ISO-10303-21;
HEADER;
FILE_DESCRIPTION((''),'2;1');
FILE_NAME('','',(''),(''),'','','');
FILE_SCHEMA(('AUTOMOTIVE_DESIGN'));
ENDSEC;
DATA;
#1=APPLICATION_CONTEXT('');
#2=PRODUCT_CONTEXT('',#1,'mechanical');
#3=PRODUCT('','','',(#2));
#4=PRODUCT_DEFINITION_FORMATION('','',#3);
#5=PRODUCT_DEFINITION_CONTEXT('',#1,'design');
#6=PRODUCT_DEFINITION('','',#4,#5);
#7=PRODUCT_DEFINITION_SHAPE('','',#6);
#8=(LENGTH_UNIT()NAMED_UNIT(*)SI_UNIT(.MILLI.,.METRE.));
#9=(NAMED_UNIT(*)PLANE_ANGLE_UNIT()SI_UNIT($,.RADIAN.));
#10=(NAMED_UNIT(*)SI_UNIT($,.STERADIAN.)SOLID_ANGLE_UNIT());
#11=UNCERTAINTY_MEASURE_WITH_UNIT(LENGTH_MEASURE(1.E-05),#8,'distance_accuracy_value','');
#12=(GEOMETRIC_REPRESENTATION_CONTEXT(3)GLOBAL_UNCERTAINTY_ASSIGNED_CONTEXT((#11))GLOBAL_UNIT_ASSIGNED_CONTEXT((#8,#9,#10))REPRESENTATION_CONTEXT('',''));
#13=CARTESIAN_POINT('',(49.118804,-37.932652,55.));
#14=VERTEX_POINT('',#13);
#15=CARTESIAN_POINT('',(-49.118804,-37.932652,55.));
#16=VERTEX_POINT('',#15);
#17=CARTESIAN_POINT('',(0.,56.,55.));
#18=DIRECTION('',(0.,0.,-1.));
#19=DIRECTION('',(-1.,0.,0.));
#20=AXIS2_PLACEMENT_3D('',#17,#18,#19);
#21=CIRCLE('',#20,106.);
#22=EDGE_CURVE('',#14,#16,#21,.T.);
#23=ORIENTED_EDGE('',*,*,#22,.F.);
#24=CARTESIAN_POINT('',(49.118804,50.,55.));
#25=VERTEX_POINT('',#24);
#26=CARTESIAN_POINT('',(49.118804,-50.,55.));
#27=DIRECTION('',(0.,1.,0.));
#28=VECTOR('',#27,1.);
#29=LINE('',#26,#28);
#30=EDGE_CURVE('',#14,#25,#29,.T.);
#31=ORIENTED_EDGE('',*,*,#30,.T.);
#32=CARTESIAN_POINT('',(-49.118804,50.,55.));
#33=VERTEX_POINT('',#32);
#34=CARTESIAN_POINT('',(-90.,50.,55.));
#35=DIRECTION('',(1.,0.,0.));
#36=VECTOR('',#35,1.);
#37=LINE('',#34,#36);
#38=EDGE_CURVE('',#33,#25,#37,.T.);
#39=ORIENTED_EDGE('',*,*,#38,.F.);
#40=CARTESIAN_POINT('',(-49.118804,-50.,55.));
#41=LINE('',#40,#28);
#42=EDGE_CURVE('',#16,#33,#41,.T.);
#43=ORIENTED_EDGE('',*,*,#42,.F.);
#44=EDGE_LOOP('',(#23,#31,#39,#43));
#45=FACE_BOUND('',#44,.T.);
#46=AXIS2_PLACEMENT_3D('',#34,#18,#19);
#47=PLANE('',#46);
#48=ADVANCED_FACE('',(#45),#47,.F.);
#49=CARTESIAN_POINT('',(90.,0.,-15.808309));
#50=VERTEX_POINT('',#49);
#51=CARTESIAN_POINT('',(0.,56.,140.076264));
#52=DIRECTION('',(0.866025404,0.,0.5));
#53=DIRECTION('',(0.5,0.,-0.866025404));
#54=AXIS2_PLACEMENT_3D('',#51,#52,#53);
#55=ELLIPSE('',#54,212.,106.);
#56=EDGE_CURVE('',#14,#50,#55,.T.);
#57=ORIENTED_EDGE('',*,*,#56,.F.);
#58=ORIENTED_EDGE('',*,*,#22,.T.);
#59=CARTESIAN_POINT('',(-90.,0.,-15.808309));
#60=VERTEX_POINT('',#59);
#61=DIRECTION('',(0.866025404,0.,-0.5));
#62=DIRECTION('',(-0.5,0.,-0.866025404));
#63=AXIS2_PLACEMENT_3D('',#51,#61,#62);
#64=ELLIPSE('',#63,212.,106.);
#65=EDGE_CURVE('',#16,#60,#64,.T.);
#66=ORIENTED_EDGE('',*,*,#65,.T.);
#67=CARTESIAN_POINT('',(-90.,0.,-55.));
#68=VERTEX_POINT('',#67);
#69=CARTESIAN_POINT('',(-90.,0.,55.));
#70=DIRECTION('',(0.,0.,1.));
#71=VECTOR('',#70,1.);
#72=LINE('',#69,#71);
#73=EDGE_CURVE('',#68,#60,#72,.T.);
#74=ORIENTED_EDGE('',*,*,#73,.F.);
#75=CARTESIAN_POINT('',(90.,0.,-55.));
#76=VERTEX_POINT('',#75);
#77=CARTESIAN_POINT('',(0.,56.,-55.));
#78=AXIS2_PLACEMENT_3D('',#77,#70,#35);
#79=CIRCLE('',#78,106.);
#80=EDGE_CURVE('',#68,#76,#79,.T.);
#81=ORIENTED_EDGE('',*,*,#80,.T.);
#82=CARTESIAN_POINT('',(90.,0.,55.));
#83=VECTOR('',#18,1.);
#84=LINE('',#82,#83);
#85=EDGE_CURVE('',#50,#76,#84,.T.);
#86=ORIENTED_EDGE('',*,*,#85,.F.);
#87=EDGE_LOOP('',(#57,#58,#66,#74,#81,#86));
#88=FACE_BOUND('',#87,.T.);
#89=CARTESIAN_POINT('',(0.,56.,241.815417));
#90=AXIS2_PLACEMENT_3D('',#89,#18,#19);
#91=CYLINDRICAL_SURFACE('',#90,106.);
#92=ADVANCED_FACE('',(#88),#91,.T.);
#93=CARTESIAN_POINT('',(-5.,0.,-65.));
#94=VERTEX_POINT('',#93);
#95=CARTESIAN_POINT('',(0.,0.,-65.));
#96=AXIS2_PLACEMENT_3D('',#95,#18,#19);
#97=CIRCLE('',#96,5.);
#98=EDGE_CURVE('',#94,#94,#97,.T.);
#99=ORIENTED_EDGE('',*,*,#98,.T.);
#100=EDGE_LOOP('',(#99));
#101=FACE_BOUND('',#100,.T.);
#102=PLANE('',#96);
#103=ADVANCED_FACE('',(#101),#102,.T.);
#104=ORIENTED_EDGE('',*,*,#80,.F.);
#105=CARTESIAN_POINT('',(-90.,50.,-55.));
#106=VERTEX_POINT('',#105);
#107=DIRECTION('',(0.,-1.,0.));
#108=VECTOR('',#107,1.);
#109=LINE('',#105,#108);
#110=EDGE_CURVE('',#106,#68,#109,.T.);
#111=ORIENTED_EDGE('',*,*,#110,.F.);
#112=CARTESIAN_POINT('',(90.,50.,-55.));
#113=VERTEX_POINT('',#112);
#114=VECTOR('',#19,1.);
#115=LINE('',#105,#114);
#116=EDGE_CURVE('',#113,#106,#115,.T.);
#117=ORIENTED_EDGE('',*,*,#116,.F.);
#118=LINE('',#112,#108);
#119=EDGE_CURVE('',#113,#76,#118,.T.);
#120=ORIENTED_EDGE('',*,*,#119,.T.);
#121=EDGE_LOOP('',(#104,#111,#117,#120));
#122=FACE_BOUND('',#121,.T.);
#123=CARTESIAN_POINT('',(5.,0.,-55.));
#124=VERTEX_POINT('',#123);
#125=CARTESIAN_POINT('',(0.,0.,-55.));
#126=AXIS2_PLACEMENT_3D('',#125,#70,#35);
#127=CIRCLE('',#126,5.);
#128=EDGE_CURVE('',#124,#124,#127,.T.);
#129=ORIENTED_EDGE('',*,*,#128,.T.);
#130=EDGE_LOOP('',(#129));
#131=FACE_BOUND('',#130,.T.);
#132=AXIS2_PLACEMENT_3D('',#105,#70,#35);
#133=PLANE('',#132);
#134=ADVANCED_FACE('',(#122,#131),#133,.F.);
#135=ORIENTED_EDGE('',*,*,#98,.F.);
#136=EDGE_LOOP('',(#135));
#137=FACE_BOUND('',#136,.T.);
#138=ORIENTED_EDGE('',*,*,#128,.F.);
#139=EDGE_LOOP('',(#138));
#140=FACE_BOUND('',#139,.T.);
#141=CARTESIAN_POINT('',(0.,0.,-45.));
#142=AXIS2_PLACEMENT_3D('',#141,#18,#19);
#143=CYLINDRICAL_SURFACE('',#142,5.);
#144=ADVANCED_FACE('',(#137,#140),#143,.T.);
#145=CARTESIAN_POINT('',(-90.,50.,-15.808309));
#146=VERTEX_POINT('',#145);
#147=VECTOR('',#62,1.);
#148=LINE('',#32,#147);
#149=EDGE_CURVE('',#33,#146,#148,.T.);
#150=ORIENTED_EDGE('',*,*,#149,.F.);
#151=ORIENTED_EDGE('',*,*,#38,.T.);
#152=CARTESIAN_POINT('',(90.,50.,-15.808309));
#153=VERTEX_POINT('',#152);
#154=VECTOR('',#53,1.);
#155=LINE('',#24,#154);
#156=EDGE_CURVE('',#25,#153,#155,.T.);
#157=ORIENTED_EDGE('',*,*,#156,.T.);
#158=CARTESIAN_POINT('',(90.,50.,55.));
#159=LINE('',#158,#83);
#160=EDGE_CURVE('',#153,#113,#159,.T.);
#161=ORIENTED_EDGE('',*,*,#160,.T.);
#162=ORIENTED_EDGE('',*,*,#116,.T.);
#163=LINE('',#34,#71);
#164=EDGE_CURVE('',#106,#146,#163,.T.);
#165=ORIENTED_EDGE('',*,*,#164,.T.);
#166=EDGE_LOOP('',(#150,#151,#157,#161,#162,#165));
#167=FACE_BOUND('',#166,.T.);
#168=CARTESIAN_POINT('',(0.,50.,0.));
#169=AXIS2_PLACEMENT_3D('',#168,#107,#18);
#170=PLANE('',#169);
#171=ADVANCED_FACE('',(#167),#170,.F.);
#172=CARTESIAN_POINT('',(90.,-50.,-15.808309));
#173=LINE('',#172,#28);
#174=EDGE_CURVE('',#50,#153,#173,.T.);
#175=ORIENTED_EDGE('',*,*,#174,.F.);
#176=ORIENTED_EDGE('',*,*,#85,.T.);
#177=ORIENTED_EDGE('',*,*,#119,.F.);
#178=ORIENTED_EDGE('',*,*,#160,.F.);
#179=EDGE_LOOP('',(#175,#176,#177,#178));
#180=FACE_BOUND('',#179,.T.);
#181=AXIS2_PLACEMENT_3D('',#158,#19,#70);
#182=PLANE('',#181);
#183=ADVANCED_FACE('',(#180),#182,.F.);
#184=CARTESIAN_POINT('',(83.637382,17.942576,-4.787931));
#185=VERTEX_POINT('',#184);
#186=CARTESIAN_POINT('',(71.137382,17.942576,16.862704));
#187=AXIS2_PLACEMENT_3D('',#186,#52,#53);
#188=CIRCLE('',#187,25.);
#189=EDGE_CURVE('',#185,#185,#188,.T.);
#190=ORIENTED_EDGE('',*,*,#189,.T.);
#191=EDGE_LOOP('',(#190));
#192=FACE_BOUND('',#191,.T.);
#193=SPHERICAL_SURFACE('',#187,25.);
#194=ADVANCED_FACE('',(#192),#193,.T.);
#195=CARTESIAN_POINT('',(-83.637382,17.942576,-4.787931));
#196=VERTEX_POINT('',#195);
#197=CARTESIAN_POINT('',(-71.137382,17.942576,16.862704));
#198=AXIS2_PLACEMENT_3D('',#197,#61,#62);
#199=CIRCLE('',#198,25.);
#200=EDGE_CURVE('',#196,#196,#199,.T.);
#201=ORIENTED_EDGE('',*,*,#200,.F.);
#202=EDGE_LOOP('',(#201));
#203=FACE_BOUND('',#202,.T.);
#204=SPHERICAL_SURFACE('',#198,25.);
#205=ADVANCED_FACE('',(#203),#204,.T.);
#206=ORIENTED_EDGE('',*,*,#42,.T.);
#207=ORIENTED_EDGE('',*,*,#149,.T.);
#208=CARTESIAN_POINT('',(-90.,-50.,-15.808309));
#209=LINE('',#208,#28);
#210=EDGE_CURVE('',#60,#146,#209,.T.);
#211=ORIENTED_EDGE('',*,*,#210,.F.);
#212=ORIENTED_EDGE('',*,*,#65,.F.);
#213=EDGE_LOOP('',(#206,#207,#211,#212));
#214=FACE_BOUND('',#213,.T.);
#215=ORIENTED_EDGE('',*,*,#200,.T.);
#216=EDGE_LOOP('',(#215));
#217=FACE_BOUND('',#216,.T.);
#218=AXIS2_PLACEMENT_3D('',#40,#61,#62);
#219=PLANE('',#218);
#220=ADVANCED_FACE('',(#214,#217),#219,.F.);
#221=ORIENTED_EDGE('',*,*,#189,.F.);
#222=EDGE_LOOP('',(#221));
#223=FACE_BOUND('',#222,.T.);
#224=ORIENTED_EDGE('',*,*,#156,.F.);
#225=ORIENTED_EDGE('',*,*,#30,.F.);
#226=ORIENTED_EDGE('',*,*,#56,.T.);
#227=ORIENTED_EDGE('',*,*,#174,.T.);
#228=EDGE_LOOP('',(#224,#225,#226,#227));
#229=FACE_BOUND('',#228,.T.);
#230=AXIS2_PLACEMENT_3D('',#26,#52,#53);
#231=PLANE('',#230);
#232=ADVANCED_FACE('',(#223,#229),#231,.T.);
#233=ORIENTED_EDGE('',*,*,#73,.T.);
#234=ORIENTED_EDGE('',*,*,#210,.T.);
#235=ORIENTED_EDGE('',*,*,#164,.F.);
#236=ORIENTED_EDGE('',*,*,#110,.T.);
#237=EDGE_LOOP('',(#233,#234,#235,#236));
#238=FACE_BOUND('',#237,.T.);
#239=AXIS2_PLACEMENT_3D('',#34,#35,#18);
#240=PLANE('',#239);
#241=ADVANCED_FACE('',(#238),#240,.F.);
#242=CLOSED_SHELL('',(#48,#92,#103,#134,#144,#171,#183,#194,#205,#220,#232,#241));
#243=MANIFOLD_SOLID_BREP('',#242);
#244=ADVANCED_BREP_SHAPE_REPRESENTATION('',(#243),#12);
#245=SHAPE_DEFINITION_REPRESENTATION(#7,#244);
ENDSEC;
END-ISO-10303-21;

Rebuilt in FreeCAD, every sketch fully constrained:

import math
import FreeCAD as App
import Part
import Sketcher
Q = App.Units.Quantity


def add_polygon(sketch, points):
    """Adds a closed chain of lines whose ends are joined by coincident constraints."""
    first, n = sketch.GeometryCount, len(points)
    for a, b in zip(points, points[1:] + points[:1]):
        sketch.addGeometry(Part.LineSegment(App.Vector(*a, 0), App.Vector(*b, 0)), False)
    for i in range(n):
        sketch.addConstraint(Sketcher.Constraint("Coincident", first + i, 2, first + (i + 1) % n, 1))

doc = App.newDocument("Part")
body = doc.addObject("PartDesign::Body", "Body")

# Sketch on XZ plane
sketch1 = body.newObject("Sketcher::SketchObject", "Sketch")
sketch1.AttachmentSupport = (doc.getObject("XZ_Plane"), [""])
sketch1.MapMode = "FlatFace"
add_polygon(sketch1, [(-90, -55), (-90, 55), (90, 55), (90, -55)])  # lines 0-3
sketch1.addConstraint([
    Sketcher.Constraint("Vertical", 0),
    Sketcher.Constraint("Horizontal", 1),
    Sketcher.Constraint("Vertical", 2),
    Sketcher.Constraint("Horizontal", 3),
    Sketcher.Constraint("Symmetric", 0, 2, 2, 2, -1, 1),
    Sketcher.Constraint("DistanceX", 1, 1, 1, 2, 180.0),
    Sketcher.Constraint("DistanceY", 0, 1, 0, 2, 110.0),
])
pad1 = body.newObject("PartDesign::Pad", "Pad")
pad1.Profile = sketch1
pad1.Length = 50
pad1.Reversed = True

# Sketch on XY plane
sketch2 = body.newObject("Sketcher::SketchObject", "Sketch001")
sketch2.AttachmentSupport = (doc.getObject("XY_Plane"), [""])
sketch2.MapMode = "FlatFace"
sketch2.AttachmentOffset = App.Placement(App.Vector(0, 0, -55), App.Rotation())
sketch2.addGeometry([
    Part.LineSegment(App.Vector(90, 0, 0), App.Vector(-90, 0, 0)),
    Part.ArcOfCircle(Part.Circle(App.Vector(0, 56, 0), App.Vector(0, 0, 1), 106), math.radians(-148), math.radians(-32)),
], False)
sketch2.addConstraint([
    Sketcher.Constraint("Coincident", 0, 1, 1, 2),
    Sketcher.Constraint("Coincident", 1, 1, 0, 2),
    Sketcher.Constraint("Horizontal", 0),
    Sketcher.Constraint("Symmetric", 0, 1, 1, 1, -1, 1),
    Sketcher.Constraint("Radius", 1, 106.0),
    Sketcher.Constraint("DistanceX", 0, 2, 0, 1, 180.0),
])
pad2 = body.newObject("PartDesign::Pad", "Pad001")
pad2.Profile = sketch2
pad2.Length = 110

# Sketch on XZ plane
sketch3 = body.newObject("Sketcher::SketchObject", "Sketch002")
sketch3.AttachmentSupport = (doc.getObject("XZ_Plane"), [""])
sketch3.MapMode = "FlatFace"
sketch3.AttachmentOffset = App.Placement(App.Vector(0, 0, -50), App.Rotation())
add_polygon(sketch3, [(-49, 55), (-90, -16), (-90, 55)])  # lines 0-2
sketch3.addConstraint([
    Sketcher.Constraint("Vertical", 1),
    Sketcher.Constraint("Horizontal", 2),
    Sketcher.Constraint("Angle", 0, Q("-120 deg")),
    Sketcher.Constraint("DistanceX", 0, 2, -1, 1, 90.0),
    Sketcher.Constraint("DistanceY", -1, 1, 1, 2, 55.0),
    Sketcher.Constraint("DistanceY", 1, 1, 1, 2, 70.808309),
])
pocket1 = body.newObject("PartDesign::Pocket", "Pocket")
pocket1.Profile = sketch3
pocket1.Type = "ThroughAll"
pocket1.Reversed = True
doc.recompute()

mirrored = body.newObject("PartDesign::Mirrored", "Mirrored")
mirrored.Originals = [pocket1]
mirrored.MirrorPlane = (doc.getObject("YZ_Plane"), [""])
body.Tip = mirrored

# Sketch on XY plane
sketch4 = body.newObject("Sketcher::SketchObject", "Sketch003")
sketch4.AttachmentSupport = (doc.getObject("XY_Plane"), [""])
sketch4.MapMode = "FlatFace"
sketch4.AttachmentOffset = App.Placement(App.Vector(0, 0, -55), App.Rotation())
sketch4.addGeometry(Part.Circle(App.Vector(0, 0, 0), App.Vector(0, 0, 1), 5), False)
sketch4.addConstraint([
    Sketcher.Constraint("Coincident", 0, 3, -1, 1),
    Sketcher.Constraint("Diameter", 0, 10.0),
])
pad3 = body.newObject("PartDesign::Pad", "Pad002")
pad3.Profile = sketch4
pad3.Type = "TwoLengths"
pad3.Length = 10
pad3.Length2 = 10
pad3.Reversed = True

# Sketch on an angled plane
sketch5 = body.newObject("Sketcher::SketchObject", "Sketch004")
sketch5.Placement = App.Placement(App.Vector(-60.654801, 0, 35.019066), App.Rotation(App.Vector(0.5, 0, 0.866025404), App.Vector(0, 1, 0), App.Vector(-0.866025404, 0, 0.5), "ZXY"))
sketch5.addGeometry([
    Part.ArcOfCircle(Part.Circle(App.Vector(-21, 18, 0), App.Vector(0, 0, 1), 25), math.radians(-90), math.radians(90)),
    Part.LineSegment(App.Vector(-21, 43, 0), App.Vector(-21, -7, 0)),
], False)
sketch5.addGeometry(Part.LineSegment(App.Vector(-21, 43, 0), App.Vector(-21, -7, 0)), True)  # axis
sketch5.addConstraint([
    Sketcher.Constraint("Coincident", 0, 1, 1, 2),
    Sketcher.Constraint("Coincident", 1, 1, 0, 2),
    Sketcher.Constraint("Vertical", 1),
    Sketcher.Constraint("Vertical", 2),
    Sketcher.Constraint("Coincident", 2, 1, 1, 1),
    Sketcher.Constraint("Equal", 1, 2),
    Sketcher.Constraint("Radius", 0, 25.0),
    Sketcher.Constraint("DistanceX", 0, 3, -1, 1, 20.965161),
    Sketcher.Constraint("DistanceX", 0, 1, -1, 1, 20.965161),
    Sketcher.Constraint("DistanceY", -1, 1, 0, 3, 17.942577),
])
revolution = body.newObject("PartDesign::Revolution", "Revolution")
revolution.Profile = sketch5
revolution.ReferenceAxis = (sketch5, ["Axis0"])
revolution.Angle = 360
doc.recompute()

mirrored2 = body.newObject("PartDesign::Mirrored", "Mirrored001")
mirrored2.Originals = [revolution]
mirrored2.MirrorPlane = (doc.getObject("YZ_Plane"), [""])
body.Tip = mirrored2

doc.recompute()
